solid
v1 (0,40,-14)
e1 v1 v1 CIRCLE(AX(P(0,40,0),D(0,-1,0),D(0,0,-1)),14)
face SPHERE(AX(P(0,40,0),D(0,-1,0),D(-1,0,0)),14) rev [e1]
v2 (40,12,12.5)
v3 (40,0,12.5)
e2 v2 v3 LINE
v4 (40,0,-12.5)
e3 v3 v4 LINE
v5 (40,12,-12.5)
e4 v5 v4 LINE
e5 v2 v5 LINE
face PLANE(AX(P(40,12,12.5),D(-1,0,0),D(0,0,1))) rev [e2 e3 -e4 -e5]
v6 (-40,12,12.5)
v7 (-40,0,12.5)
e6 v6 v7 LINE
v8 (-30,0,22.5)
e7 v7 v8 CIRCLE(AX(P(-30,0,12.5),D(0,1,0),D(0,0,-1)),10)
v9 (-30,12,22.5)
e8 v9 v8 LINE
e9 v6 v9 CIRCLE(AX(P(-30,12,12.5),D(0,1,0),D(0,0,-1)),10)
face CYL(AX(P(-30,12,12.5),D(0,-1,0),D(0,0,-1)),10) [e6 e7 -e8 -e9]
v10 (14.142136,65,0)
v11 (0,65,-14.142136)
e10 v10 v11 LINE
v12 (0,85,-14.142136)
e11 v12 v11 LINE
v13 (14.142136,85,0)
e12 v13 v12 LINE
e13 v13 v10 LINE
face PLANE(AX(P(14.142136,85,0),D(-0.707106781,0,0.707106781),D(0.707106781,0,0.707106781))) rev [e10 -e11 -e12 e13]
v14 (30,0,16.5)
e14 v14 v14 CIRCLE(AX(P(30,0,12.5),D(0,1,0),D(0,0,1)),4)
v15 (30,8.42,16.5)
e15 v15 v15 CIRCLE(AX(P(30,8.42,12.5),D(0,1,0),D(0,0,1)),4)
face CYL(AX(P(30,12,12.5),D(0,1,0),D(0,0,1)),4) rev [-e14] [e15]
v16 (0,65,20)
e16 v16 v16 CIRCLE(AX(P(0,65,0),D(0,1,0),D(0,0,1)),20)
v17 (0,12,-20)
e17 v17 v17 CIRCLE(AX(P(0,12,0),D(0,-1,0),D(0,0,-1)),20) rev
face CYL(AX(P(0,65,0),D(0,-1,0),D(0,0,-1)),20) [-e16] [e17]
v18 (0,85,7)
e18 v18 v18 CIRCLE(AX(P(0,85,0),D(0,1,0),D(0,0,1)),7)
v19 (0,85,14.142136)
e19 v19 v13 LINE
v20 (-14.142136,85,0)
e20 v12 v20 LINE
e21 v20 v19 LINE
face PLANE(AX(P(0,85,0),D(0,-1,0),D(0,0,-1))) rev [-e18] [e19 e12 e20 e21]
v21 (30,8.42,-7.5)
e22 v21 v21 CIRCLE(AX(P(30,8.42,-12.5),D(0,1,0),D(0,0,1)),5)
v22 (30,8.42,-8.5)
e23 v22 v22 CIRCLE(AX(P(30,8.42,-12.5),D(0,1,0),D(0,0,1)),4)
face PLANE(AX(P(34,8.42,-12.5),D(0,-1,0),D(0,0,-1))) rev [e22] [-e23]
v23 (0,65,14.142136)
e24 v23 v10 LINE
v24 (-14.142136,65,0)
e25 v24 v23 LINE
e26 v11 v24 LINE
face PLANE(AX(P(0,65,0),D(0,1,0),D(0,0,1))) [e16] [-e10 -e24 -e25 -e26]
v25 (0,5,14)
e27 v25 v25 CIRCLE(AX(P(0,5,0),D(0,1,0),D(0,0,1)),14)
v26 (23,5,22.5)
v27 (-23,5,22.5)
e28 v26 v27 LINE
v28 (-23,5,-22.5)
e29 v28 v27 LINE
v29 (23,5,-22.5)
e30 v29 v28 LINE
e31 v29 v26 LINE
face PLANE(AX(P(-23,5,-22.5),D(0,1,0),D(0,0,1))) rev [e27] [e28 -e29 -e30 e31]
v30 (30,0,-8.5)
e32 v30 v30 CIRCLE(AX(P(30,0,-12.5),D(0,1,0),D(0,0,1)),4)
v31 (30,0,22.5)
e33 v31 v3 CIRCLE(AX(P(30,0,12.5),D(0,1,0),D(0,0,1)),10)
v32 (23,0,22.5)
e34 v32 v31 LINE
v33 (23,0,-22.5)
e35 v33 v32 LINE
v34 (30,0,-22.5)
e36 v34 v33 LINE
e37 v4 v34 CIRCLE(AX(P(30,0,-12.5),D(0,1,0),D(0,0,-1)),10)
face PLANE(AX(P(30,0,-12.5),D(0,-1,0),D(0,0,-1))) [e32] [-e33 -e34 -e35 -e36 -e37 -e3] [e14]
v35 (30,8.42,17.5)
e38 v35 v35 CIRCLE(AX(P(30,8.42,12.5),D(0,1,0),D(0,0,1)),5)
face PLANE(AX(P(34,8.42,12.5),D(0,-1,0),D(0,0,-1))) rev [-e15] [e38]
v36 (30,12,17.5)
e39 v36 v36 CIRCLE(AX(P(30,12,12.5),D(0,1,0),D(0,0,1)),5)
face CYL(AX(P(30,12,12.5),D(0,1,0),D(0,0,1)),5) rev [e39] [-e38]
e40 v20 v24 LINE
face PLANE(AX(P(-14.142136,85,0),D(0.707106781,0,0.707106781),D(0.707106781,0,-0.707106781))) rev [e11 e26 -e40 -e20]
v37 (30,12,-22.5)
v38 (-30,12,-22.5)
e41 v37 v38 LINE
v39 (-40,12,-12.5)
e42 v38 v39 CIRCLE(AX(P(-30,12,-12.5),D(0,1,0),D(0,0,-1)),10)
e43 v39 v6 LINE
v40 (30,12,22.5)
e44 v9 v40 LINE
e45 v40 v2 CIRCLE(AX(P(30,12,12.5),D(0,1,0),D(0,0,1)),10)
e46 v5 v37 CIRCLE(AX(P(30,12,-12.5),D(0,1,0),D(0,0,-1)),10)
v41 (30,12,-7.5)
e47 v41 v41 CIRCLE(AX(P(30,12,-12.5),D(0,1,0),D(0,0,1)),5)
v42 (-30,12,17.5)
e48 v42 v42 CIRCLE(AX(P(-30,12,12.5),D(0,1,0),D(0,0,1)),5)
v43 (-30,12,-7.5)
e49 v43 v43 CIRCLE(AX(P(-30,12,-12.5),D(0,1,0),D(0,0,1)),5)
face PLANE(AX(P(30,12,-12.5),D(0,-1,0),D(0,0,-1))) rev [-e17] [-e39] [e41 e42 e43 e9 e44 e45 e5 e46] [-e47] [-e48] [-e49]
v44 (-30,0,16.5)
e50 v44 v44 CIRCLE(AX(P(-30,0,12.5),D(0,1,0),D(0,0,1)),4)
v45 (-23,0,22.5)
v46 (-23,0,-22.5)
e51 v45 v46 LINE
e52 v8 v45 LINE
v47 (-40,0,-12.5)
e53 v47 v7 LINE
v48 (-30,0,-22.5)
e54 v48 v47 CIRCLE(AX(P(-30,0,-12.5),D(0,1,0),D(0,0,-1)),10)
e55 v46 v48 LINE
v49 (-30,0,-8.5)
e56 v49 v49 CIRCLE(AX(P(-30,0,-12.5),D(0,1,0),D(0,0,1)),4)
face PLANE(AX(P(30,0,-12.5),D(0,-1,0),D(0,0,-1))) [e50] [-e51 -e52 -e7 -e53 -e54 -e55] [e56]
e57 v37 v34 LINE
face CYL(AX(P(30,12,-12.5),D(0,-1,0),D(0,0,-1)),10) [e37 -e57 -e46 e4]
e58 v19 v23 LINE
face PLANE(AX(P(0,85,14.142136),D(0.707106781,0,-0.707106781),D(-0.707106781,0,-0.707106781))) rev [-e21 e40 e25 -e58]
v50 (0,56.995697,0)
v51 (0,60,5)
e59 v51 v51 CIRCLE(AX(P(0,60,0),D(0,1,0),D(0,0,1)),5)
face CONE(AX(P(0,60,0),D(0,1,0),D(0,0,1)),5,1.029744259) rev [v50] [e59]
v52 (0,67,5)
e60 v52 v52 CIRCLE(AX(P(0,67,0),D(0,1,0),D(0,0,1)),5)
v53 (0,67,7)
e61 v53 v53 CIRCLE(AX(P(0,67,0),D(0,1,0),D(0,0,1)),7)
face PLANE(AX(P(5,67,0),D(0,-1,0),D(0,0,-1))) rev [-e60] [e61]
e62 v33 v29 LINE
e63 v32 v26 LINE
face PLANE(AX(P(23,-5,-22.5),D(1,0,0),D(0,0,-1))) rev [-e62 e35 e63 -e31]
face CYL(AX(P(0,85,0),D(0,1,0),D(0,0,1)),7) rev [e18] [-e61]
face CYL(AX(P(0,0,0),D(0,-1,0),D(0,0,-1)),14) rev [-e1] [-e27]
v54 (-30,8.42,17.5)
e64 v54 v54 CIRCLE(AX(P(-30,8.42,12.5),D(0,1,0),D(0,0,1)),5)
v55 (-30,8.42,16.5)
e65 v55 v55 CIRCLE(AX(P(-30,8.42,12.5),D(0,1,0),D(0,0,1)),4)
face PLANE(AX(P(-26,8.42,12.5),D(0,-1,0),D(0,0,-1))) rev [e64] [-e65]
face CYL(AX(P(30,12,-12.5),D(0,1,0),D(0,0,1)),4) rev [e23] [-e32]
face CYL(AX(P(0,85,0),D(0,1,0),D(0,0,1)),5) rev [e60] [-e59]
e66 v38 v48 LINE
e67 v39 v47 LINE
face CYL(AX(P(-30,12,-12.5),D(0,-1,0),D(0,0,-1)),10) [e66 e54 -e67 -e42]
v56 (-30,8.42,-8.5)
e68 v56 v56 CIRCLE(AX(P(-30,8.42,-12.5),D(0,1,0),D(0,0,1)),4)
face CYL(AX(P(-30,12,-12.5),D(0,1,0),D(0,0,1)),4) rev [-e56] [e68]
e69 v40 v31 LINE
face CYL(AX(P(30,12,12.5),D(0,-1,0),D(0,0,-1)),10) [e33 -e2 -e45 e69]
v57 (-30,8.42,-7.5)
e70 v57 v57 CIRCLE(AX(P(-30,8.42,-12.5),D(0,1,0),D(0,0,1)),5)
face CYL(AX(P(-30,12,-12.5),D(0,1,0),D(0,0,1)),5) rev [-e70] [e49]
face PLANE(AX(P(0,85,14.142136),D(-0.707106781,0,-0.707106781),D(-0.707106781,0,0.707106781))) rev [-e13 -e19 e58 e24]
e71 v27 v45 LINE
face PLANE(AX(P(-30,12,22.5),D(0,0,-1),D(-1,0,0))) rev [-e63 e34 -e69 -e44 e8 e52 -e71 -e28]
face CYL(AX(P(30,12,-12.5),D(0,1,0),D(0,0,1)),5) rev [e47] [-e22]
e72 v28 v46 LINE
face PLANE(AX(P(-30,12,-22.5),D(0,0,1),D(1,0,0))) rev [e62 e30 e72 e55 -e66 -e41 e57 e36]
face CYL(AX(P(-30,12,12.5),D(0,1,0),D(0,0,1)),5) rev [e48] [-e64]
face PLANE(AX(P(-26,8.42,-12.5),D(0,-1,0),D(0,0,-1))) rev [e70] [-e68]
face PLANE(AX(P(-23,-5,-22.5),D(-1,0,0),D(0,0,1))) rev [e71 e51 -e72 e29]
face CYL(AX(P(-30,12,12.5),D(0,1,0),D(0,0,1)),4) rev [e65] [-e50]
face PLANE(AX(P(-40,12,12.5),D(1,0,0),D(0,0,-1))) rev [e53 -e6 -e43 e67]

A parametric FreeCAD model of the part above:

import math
import FreeCAD as App
import Part
import Sketcher
Q = App.Units.Quantity


def add_polygon(sketch, points):
    """Adds a closed chain of lines whose ends are joined by coincident constraints."""
    first, n = sketch.GeometryCount, len(points)
    for a, b in zip(points, points[1:] + points[:1]):
        sketch.addGeometry(Part.LineSegment(App.Vector(*a, 0), App.Vector(*b, 0)), False)
    for i in range(n):
        sketch.addConstraint(Sketcher.Constraint("Coincident", first + i, 2, first + (i + 1) % n, 1))

doc = App.newDocument("Part")
body = doc.addObject("PartDesign::Body", "Body")

# Sketch on XZ plane
sketch1 = doc.addObject("Sketcher::SketchObject", "Sketch")
body.addObject(sketch1)
sketch1.AttachmentSupport = (doc.XZ_Plane, [""])
sketch1.MapMode = "FlatFace"
sketch1.addGeometry([
    Part.LineSegment(App.Vector(-30, 22.5, 0), App.Vector(30, 22.5, 0)),  # 0
    Part.ArcOfCircle(Part.Circle(App.Vector(30, 12.5, 0), App.Vector(0, 0, 1), 10), math.radians(0), math.radians(90)),  # 1
    Part.LineSegment(App.Vector(40, 12.5, 0), App.Vector(40, -12.5, 0)),  # 2
    Part.ArcOfCircle(Part.Circle(App.Vector(30, -12.5, 0), App.Vector(0, 0, 1), 10), math.radians(-90), math.radians(0)),  # 3
    Part.LineSegment(App.Vector(30, -22.5, 0), App.Vector(-30, -22.5, 0)),  # 4
    Part.ArcOfCircle(Part.Circle(App.Vector(-30, -12.5, 0), App.Vector(0, 0, 1), 10), math.radians(180), math.radians(270)),  # 5
    Part.LineSegment(App.Vector(-40, -12.5, 0), App.Vector(-40, 12.5, 0)),  # 6
    Part.ArcOfCircle(Part.Circle(App.Vector(-30, 12.5, 0), App.Vector(0, 0, 1), 10), math.radians(90), math.radians(180)),  # 7
], False)
sketch1.addConstraint([
    Sketcher.Constraint("Tangent", 0, 2, 1, 2),
    Sketcher.Constraint("Tangent", 1, 1, 2, 1),
    Sketcher.Constraint("Tangent", 2, 2, 3, 2),
    Sketcher.Constraint("Tangent", 3, 1, 4, 1),
    Sketcher.Constraint("Tangent", 4, 2, 5, 2),
    Sketcher.Constraint("Tangent", 5, 1, 6, 1),
    Sketcher.Constraint("Tangent", 6, 2, 7, 2),
    Sketcher.Constraint("Tangent", 7, 1, 0, 1),
    Sketcher.Constraint("Horizontal", 0),
    Sketcher.Constraint("Vertical", 2),
    Sketcher.Constraint("Horizontal", 4),
    Sketcher.Constraint("Vertical", 6),
    Sketcher.Constraint("Equal", 1, 3),
    Sketcher.Constraint("Equal", 3, 5),
    Sketcher.Constraint("Equal", 5, 7),
    Sketcher.Constraint("Symmetric", 1, 3, 5, 3, -1, 1),
    Sketcher.Constraint("Radius", 1, Q("10 mm")),
    Sketcher.Constraint("DistanceX", 0, 1, 0, 2, Q("60 mm")),
    Sketcher.Constraint("DistanceY", 2, 2, 2, 1, Q("25 mm")),
])
pad1 = doc.addObject("PartDesign::Pad", "Pad")
body.addObject(pad1)
pad1.Profile = sketch1
pad1.Length = 12
pad1.Reversed = True

# Sketch on XZ plane
sketch2 = doc.addObject("Sketcher::SketchObject", "Sketch001")
body.addObject(sketch2)
sketch2.AttachmentSupport = (doc.XZ_Plane, [""])
sketch2.MapMode = "FlatFace"
sketch2.AttachmentOffset = App.Placement(App.Vector(0, 0, -12), App.Rotation())
sketch2.addGeometry([
    Part.Circle(App.Vector(-30, 12.5, 0), App.Vector(0, 0, 1), 4),
    Part.Circle(App.Vector(-30, -12.5, 0), App.Vector(0, 0, 1), 4),
    Part.Circle(App.Vector(30, -12.5, 0), App.Vector(0, 0, 1), 4),
    Part.Circle(App.Vector(30, 12.5, 0), App.Vector(0, 0, 1), 4),
], False)
sketch2.addConstraint([
    Sketcher.Constraint("Equal", 0, 1),
    Sketcher.Constraint("Equal", 1, 2),
    Sketcher.Constraint("Equal", 2, 3),
    Sketcher.Constraint("Symmetric", 0, 3, 2, 3, -1, 1),
    Sketcher.Constraint("Symmetric", 1, 3, 3, 3, -1, 1),
    Sketcher.Constraint("Symmetric", 1, 3, 2, 3, -2),
    Sketcher.Constraint("Diameter", 0, Q("8 mm")),
    Sketcher.Constraint("DistanceX", 0, 3, -1, 1, Q("30 mm")),
    Sketcher.Constraint("DistanceY", 1, 3, 0, 3, Q("25 mm")),
])
doc.recompute()
hole = doc.addObject("PartDesign::Hole", "Hole")
body.addObject(hole)
hole.Profile = sketch2
hole.ThreadType = "None"
hole.Diameter = 8
hole.DepthType = "ThroughAll"
hole.HoleCutType = "Counterbore"
hole.HoleCutDiameter = 10
hole.HoleCutDepth = 3.58
hole.Reversed = True

# Sketch on XZ plane
sketch3 = doc.addObject("Sketcher::SketchObject", "Sketch002")
body.addObject(sketch3)
sketch3.AttachmentSupport = (doc.XZ_Plane, [""])
sketch3.MapMode = "FlatFace"
sketch3.AttachmentOffset = App.Placement(App.Vector(0, 0, -12), App.Rotation())
sketch3.addGeometry(Part.Circle(App.Vector(0, 0, 0), App.Vector(0, 0, 1), 20), False)
sketch3.addConstraint([
    Sketcher.Constraint("Coincident", 0, 3, -1, 1),
    Sketcher.Constraint("Diameter", 0, Q("40 mm")),
])
pad2 = doc.addObject("PartDesign::Pad", "Pad001")
body.addObject(pad2)
pad2.Profile = sketch3
pad2.Length = 53
pad2.Reversed = True

# Sketch on XZ plane
sketch4 = doc.addObject("Sketcher::SketchObject", "Sketch003")
body.addObject(sketch4)
sketch4.AttachmentSupport = (doc.XZ_Plane, [""])
sketch4.MapMode = "FlatFace"
sketch4.AttachmentOffset = App.Placement(App.Vector(0, 0, -65), App.Rotation())
add_polygon(sketch4, [(0, 14.142136), (14.142136, 0), (0, -14.142136), (-14.142136, 0)])  # lines 0-3
sketch4.addConstraint([
    Sketcher.Constraint("Symmetric", 0, 2, 2, 2, -1, 1),
    Sketcher.Constraint("Symmetric", 1, 2, 3, 2, -1, 1),
    Sketcher.Constraint("PointOnObject", 0, 2, -1),
    Sketcher.Constraint("PointOnObject", 1, 2, -2),
    Sketcher.Constraint("Perpendicular", 0, 1),
    Sketcher.Constraint("Distance", 0, Q("20 mm")),
])
pad3 = doc.addObject("PartDesign::Pad", "Pad002")
body.addObject(pad3)
pad3.Profile = sketch4
pad3.Length = 20
pad3.Reversed = True

# Sketch on XZ plane
sketch5 = doc.addObject("Sketcher::SketchObject", "Sketch004")
body.addObject(sketch5)
sketch5.AttachmentSupport = (doc.XZ_Plane, [""])
sketch5.MapMode = "FlatFace"
sketch5.AttachmentOffset = App.Placement(App.Vector(0, 0, -85), App.Rotation())
sketch5.addGeometry(Part.Circle(App.Vector(0, 0, 0), App.Vector(0, 0, 1), 5), False)
sketch5.addConstraint([
    Sketcher.Constraint("Coincident", 0, 3, -1, 1),
    Sketcher.Constraint("Diameter", 0, Q("10 mm")),
])
doc.recompute()
hole2 = doc.addObject("PartDesign::Hole", "Hole001")
body.addObject(hole2)
hole2.Profile = sketch5
hole2.ThreadType = "None"
hole2.Diameter = 10
hole2.DepthType = "Dimension"
hole2.Depth = 25
hole2.DrillPoint = "Angled"
hole2.DrillPointAngle = 118
hole2.HoleCutType = "Counterbore"
hole2.HoleCutDiameter = 14
hole2.HoleCutDepth = 18
hole2.Reversed = True

# Sketch on XY plane
sketch6 = doc.addObject("Sketcher::SketchObject", "Sketch005")
body.addObject(sketch6)
sketch6.AttachmentSupport = (doc.XY_Plane, [""])
sketch6.MapMode = "FlatFace"
sketch6.addGeometry([
    Part.LineSegment(App.Vector(0, 0, 0), App.Vector(0, 54, 0)),
    Part.ArcOfCircle(Part.Circle(App.Vector(0, 40, 0), App.Vector(0, 0, 1), 14), math.radians(90), math.radians(180)),
    Part.LineSegment(App.Vector(-14, 40, 0), App.Vector(-14, 0, 0)),
    Part.LineSegment(App.Vector(-14, 0, 0), App.Vector(0, 0, 0)),
], False)
sketch6.addConstraint([
    Sketcher.Constraint("Coincident", 0, 2, 1, 1),
    Sketcher.Constraint("Tangent", 1, 2, 2, 1),
    Sketcher.Constraint("Coincident", 2, 2, 3, 1),
    Sketcher.Constraint("Coincident", 3, 2, 0, 1),
    Sketcher.Constraint("Vertical", 0),
    Sketcher.Constraint("Vertical", 2),
    Sketcher.Constraint("Horizontal", 3),
    Sketcher.Constraint("Coincident", 3, 2, -1, 1),
    Sketcher.Constraint("PointOnObject", 1, 3, -2),
    Sketcher.Constraint("Radius", 1, Q("14 mm")),
    Sketcher.Constraint("DistanceY", 0, 1, 0, 2, Q("54 mm")),
])
groove = doc.addObject("PartDesign::Groove", "Groove")
body.addObject(groove)
groove.Profile = sketch6
groove.ReferenceAxis = (sketch6, ["V_Axis"])
groove.Angle = 360

# Sketch on XY plane
sketch7 = doc.addObject("Sketcher::SketchObject", "Sketch006")
body.addObject(sketch7)
sketch7.AttachmentSupport = (doc.XY_Plane, [""])
sketch7.MapMode = "FlatFace"
sketch7.AttachmentOffset = App.Placement(App.Vector(0, 0, 22.5), App.Rotation())
add_polygon(sketch7, [(-23, 5), (-23, -5), (23, -5), (23, 5)])  # lines 0-3
sketch7.addConstraint([
    Sketcher.Constraint("Vertical", 0),
    Sketcher.Constraint("Horizontal", 1),
    Sketcher.Constraint("Vertical", 2),
    Sketcher.Constraint("Horizontal", 3),
    Sketcher.Constraint("Symmetric", 0, 2, 2, 2, -1, 1),
    Sketcher.Constraint("DistanceX", 1, 1, 1, 2, Q("46 mm")),
    Sketcher.Constraint("DistanceY", 0, 2, 0, 1, Q("10 mm")),
])
pocket1 = doc.addObject("PartDesign::Pocket", "Pocket")
body.addObject(pocket1)
pocket1.Profile = sketch7
pocket1.Type = "ThroughAll"

doc.recompute()
